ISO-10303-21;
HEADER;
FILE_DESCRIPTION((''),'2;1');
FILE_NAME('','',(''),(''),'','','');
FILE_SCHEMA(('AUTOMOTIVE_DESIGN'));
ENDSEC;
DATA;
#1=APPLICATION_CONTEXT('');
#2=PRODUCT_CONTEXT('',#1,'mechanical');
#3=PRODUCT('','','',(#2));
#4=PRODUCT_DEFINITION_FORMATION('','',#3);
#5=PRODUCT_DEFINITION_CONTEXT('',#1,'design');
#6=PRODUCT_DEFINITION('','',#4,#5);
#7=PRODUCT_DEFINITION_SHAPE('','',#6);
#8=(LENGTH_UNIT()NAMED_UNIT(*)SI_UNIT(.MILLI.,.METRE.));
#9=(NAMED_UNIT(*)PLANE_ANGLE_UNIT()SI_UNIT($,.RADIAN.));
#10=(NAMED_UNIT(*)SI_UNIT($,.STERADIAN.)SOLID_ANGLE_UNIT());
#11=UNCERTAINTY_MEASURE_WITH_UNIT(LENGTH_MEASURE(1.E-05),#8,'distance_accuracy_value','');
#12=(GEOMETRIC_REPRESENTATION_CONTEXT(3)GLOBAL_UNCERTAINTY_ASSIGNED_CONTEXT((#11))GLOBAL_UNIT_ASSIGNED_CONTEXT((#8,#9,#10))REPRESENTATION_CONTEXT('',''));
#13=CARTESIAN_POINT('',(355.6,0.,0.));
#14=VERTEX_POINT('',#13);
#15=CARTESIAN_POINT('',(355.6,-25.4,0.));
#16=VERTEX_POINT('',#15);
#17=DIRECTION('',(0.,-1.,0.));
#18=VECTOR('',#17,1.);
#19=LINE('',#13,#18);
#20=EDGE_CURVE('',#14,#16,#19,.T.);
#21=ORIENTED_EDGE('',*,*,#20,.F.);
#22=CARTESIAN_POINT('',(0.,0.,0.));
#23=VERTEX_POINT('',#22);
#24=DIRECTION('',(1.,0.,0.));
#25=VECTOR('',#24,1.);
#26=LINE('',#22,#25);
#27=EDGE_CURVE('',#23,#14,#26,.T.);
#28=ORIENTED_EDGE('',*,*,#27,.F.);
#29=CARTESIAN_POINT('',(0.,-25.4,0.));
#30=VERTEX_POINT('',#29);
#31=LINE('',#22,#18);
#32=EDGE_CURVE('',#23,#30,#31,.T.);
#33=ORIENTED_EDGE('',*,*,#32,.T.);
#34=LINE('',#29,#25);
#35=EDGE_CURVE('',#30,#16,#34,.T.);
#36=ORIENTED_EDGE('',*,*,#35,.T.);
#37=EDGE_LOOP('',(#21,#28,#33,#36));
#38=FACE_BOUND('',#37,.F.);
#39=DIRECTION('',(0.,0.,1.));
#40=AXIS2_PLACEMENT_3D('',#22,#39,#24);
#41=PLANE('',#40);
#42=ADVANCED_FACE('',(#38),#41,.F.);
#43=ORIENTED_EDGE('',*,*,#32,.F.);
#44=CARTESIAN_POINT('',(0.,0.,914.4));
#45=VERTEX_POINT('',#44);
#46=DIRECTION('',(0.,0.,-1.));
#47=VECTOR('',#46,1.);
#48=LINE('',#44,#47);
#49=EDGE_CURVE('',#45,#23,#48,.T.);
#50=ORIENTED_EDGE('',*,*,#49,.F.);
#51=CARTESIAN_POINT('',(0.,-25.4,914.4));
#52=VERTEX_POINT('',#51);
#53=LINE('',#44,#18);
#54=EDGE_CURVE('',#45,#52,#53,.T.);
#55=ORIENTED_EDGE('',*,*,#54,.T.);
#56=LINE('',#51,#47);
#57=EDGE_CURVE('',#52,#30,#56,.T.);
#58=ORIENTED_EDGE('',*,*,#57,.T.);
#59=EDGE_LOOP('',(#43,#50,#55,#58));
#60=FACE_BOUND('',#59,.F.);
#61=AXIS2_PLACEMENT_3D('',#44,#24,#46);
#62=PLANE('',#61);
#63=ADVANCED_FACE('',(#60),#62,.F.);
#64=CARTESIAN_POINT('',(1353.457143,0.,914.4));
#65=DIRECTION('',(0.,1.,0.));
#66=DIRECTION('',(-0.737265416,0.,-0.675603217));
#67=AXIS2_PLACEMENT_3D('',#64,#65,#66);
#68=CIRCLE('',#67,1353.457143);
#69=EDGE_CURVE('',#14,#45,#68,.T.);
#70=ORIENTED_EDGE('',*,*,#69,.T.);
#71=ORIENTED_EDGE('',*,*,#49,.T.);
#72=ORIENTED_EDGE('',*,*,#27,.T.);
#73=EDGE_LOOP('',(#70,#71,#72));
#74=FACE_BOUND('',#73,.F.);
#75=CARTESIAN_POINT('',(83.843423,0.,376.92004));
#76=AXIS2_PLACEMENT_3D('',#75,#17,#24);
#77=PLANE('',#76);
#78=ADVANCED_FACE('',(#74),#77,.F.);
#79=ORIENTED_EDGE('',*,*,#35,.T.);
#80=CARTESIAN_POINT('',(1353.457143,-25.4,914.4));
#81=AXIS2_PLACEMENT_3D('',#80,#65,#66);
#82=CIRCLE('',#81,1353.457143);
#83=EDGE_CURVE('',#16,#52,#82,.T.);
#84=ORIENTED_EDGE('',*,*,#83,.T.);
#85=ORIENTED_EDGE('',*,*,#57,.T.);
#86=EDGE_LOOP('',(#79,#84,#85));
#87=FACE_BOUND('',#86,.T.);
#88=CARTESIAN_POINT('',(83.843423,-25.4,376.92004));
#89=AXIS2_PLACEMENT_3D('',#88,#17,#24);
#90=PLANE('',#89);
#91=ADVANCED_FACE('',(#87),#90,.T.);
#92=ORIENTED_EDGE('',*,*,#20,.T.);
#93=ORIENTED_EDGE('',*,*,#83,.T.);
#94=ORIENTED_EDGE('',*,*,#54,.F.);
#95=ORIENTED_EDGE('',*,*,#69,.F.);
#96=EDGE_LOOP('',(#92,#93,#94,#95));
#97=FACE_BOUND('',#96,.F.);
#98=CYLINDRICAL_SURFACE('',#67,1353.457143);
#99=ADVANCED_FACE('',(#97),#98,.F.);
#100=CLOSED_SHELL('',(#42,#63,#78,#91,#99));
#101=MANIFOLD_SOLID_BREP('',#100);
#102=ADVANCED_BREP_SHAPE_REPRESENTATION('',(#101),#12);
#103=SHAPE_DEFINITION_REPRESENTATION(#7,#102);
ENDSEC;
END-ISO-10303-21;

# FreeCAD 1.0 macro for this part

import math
import FreeCAD as App
import Part
import Sketcher
from FreeCAD import Vector
Q = App.Units.Quantity

doc = App.newDocument("Part")
body = doc.addObject("PartDesign::Body", "Body")

sketch1 = body.newObject("Sketcher::SketchObject", "Sketch")
sketch1.AttachmentSupport = (doc.getObject("XZ_Plane"), [""])
sketch1.MapMode = "FlatFace"
sketch1.addGeometry([
    Part.LineSegment(Vector(0, 914.4, 0), Vector(0, 0, 0)),
    Part.LineSegment(Vector(0, 0, 0), Vector(355.6, 0, 0)),
    Part.ArcOfCircle(Part.Circle(Vector(1353.457143, 914.4, 0), Vector(0, 0, 1), 1353.457143), math.radians(-180), math.radians(-137.498989)),
], False)
sketch1.addConstraint([
    Sketcher.Constraint("Coincident", 0, 2, 1, 1),
    Sketcher.Constraint("Coincident", 1, 2, 2, 2),
    Sketcher.Constraint("Coincident", 2, 1, 0, 1),
    Sketcher.Constraint("Vertical", 0),
    Sketcher.Constraint("Horizontal", 1),
    Sketcher.Constraint("Coincident", 0, 2, -1, 1),
    Sketcher.Constraint("DistanceX", 1, 1, 1, 2, Q("14 in")),
    Sketcher.Constraint("DistanceY", 0, 2, 0, 1, Q("36 in")),
    Sketcher.Constraint("DistanceY", -1, 1, 2, 3, Q("36 in")),
])
pad1 = body.newObject("PartDesign::Pad", "Pad")
pad1.Profile = sketch1
pad1.Length = Q("1 in")

doc.recompute()
